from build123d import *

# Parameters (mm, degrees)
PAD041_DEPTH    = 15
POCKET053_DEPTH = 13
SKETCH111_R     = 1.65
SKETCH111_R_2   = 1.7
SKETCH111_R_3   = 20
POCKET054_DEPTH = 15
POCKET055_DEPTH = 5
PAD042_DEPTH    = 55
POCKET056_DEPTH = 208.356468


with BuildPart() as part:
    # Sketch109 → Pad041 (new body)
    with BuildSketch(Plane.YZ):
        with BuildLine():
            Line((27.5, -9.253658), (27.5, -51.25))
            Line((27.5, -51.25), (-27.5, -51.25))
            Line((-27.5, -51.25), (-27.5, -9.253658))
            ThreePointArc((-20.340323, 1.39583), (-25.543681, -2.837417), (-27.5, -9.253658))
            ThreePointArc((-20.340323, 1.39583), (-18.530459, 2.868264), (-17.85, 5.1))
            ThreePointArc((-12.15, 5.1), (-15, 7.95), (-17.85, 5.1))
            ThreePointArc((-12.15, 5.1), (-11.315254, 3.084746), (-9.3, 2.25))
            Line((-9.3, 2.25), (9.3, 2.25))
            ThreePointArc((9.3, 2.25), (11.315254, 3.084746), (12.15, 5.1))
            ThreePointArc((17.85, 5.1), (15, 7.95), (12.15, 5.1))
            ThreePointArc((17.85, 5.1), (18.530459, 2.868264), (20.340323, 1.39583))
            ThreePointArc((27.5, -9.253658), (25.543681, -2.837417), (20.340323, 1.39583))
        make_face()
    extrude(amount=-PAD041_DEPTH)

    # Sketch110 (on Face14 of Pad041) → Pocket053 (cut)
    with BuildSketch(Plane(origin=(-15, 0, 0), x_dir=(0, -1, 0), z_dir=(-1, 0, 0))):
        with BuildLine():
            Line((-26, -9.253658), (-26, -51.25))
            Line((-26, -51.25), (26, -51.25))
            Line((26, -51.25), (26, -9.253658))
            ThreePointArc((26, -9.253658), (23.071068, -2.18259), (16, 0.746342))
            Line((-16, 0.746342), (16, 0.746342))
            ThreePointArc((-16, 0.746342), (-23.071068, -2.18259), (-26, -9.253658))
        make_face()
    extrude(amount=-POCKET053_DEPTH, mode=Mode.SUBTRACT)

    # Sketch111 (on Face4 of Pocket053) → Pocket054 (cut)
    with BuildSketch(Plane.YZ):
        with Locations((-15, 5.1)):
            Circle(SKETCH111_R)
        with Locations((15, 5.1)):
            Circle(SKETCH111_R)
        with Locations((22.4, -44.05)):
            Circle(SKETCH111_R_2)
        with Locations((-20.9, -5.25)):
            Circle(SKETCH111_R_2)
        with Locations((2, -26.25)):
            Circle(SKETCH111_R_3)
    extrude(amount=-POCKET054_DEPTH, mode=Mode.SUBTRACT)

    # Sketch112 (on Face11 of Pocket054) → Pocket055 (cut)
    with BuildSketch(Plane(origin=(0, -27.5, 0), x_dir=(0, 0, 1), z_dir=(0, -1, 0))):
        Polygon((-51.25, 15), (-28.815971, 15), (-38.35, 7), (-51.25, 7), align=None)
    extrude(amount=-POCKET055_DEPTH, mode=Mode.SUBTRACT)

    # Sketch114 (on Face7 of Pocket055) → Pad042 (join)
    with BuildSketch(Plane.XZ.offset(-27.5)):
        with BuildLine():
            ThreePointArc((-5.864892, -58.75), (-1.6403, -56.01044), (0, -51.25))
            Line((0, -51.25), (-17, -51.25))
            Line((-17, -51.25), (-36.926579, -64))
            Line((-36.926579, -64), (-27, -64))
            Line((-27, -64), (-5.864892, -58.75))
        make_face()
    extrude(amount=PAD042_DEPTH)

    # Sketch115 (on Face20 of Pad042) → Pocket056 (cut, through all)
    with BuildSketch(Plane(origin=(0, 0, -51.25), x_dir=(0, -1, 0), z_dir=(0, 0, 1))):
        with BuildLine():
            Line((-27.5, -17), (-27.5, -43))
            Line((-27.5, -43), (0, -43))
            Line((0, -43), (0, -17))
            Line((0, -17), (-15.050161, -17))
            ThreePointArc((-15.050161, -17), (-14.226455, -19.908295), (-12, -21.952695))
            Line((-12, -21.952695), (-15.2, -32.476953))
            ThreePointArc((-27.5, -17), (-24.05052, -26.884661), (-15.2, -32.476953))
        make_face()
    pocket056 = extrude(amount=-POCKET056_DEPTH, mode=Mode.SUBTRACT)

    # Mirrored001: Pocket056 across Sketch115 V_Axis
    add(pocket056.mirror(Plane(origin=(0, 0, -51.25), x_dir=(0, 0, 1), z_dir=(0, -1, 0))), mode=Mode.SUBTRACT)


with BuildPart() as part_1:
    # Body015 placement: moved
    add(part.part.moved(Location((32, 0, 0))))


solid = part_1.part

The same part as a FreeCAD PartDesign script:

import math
import FreeCAD as App
import Part
import Sketcher

V = App.Vector
Q = App.Units.Quantity


def add_polygon(sketch, points):
    """Adds a closed chain of lines whose ends are joined by coincident constraints."""
    first, n = sketch.GeometryCount, len(points)
    for a, b in zip(points, points[1:] + points[:1]):
        sketch.addGeometry(Part.LineSegment(App.Vector(*a, 0), App.Vector(*b, 0)), False)
    for i in range(n):
        sketch.addConstraint(Sketcher.Constraint("Coincident", first + i, 2, first + (i + 1) % n, 1))

doc = App.newDocument("Part")
params = doc.addObject("Spreadsheet::Sheet", "Params")
for row, (alias, value) in enumerate([
    ("sketch1_radius", "4.000001 mm"),
    ("sketch1_radius2", "11.500001 mm"),
    ("sketch1_width", "55 mm"),
    ("sketch1_radius3", "2.85 mm"),
    ("sketch1_width2", "18.6 mm"),
    ("pad1_length", "15 mm"),
    ("sketch2_radius", "9.999999 mm"),
    ("sketch2_width", "52 mm"),
    ("pocket1_length", "13 mm"),
    ("sketch3_diameter", "40 mm"),
    ("sketch3_diameter2", "3.3 mm"),
    ("sketch3_diameter3", "3.4 mm"),
    ("pocket2_length", "15 mm"),
    ("sketch4_width", "8 mm"),
    ("sketch4_height", "12.9 mm"),
    ("pocket3_length", "5 mm"),
    ("sketch5_width", "17 mm"),
    ("pad2_length", "55 mm"),
    ("sketch6_width", "26 mm"),
    ("sketch6_length", "11 mm"),
    ("sketch6_height", "27.5 mm"),
], start=1):
    params.set(f"A{row}", alias)
    params.set(f"B{row}", "=" + value)
    params.setAlias(f"B{row}", alias)

body = doc.addObject("PartDesign::Body", "Body")

sketch1 = doc.addObject("Sketcher::SketchObject", "Sketch")
body.addObject(sketch1)
sketch1.AttachmentSupport = (doc.YZ_Plane, [""])
sketch1.MapMode = "FlatFace"
sketch1.addGeometry(Part.LineSegment(V(27.5, -51.2, 0), V(27.5, -9.3, 0)), False)
sketch1.addGeometry(Part.ArcOfCircle(Part.Circle(V(16, -9.3, 0), V(0, 0, 1), 11.5), math.radians(0), math.radians(68)), False)
sketch1.addGeometry(Part.ArcOfCircle(Part.Circle(V(21.9, 5.1, 0), V(0, 0, 1), 4), math.radians(-180), math.radians(-112)), False)
sketch1.addGeometry(Part.ArcOfCircle(Part.Circle(V(15, 5.1, 0), V(0, 0, 1), 2.9), math.radians(0), math.radians(180)), False)
sketch1.addGeometry(Part.ArcOfCircle(Part.Circle(V(9.3, 5.1, 0), V(0, 0, 1), 2.9), math.radians(-90), math.radians(0)), False)
sketch1.addGeometry(Part.LineSegment(V(9.3, 2.2, 0), V(-9.3, 2.2, 0)), False)
sketch1.addGeometry(Part.ArcOfCircle(Part.Circle(V(-9.3, 5.1, 0), V(0, 0, 1), 2.9), math.radians(-180), math.radians(-90)), False)
sketch1.addGeometry(Part.ArcOfCircle(Part.Circle(V(-15, 5.1, 0), V(0, 0, 1), 2.9), math.radians(0), math.radians(180)), False)
sketch1.addGeometry(Part.ArcOfCircle(Part.Circle(V(-21.9, 5.1, 0), V(0, 0, 1), 4), math.radians(-68), math.radians(0)), False)
sketch1.addGeometry(Part.ArcOfCircle(Part.Circle(V(-16, -9.3, 0), V(0, 0, 1), 11.5), math.radians(112), math.radians(180)), False)
sketch1.addGeometry(Part.LineSegment(V(-27.5, -9.3, 0), V(-27.5, -51.2, 0)), False)
sketch1.addGeometry(Part.LineSegment(V(-27.5, -51.2, 0), V(27.5, -51.2, 0)), False)
sketch1.addConstraint(Sketcher.Constraint("Tangent", 0, 2, 1, 1))
sketch1.addConstraint(Sketcher.Constraint("Tangent", 1, 2, 2, 2))
sketch1.addConstraint(Sketcher.Constraint("Tangent", 2, 1, 3, 1))
sketch1.addConstraint(Sketcher.Constraint("Tangent", 3, 2, 4, 2))
sketch1.addConstraint(Sketcher.Constraint("Tangent", 4, 1, 5, 1))
sketch1.addConstraint(Sketcher.Constraint("Tangent", 5, 2, 6, 2))
sketch1.addConstraint(Sketcher.Constraint("Tangent", 6, 1, 7, 1))
sketch1.addConstraint(Sketcher.Constraint("Tangent", 7, 2, 8, 2))
sketch1.addConstraint(Sketcher.Constraint("Tangent", 8, 1, 9, 1))
sketch1.addConstraint(Sketcher.Constraint("Tangent", 9, 2, 10, 1))
sketch1.addConstraint(Sketcher.Constraint("Coincident", 10, 2, 11, 1))
sketch1.addConstraint(Sketcher.Constraint("Coincident", 11, 2, 0, 1))
sketch1.addConstraint(Sketcher.Constraint("Vertical", 0))
sketch1.addConstraint(Sketcher.Constraint("Horizontal", 5))
sketch1.addConstraint(Sketcher.Constraint("Vertical", 10))
sketch1.addConstraint(Sketcher.Constraint("Horizontal", 11))
sketch1.addConstraint(Sketcher.Constraint("Equal", 3, 4))
sketch1.addConstraint(Sketcher.Constraint("Equal", 4, 6))
sketch1.addConstraint(Sketcher.Constraint("Equal", 6, 7))
sketch1.addConstraint(Sketcher.Constraint("Equal", 2, 8))
sketch1.addConstraint(Sketcher.Constraint("Equal", 1, 9))
sketch1.addConstraint(Sketcher.Constraint("Symmetric", 3, 3, 7, 3, -2))
sketch1.addConstraint(Sketcher.Constraint("Symmetric", 1, 3, 9, 3, -2))
sketch1.addConstraint(Sketcher.Constraint("Horizontal", 2, 3, 3, 3))
sketch1.addConstraint(Sketcher.Constraint("Horizontal", 3, 3, 4, 3))
sketch1.addConstraint(Sketcher.Constraint("Radius", 2, Q("4.000001 mm")))
sketch1.addConstraint(Sketcher.Constraint("Radius", 1, Q("11.500001 mm")))
sketch1.addConstraint(Sketcher.Constraint("DistanceX", 11, 1, 11, 2, Q("55 mm")))
sketch1.addConstraint(Sketcher.Constraint("Radius", 3, Q("2.85 mm")))
sketch1.addConstraint(Sketcher.Constraint("DistanceX", 5, 2, 5, 1, Q("18.6 mm")))
sketch1.addConstraint(Sketcher.Constraint("DistanceY", -1, 1, 2, 3, Q("5.100001 mm")))
sketch1.addConstraint(Sketcher.Constraint("DistanceY", 10, 2, 5, 2, Q("53.5 mm")))
sketch1.setExpression("Constraints[25]", "Params.sketch1_radius")
sketch1.setExpression("Constraints[26]", "Params.sketch1_radius2")
sketch1.setExpression("Constraints[27]", "Params.sketch1_width")
sketch1.setExpression("Constraints[28]", "Params.sketch1_radius3")
sketch1.setExpression("Constraints[29]", "Params.sketch1_width2")
pad1 = doc.addObject("PartDesign::Pad", "Pad")
body.addObject(pad1)
pad1.Profile = sketch1
pad1.setExpression("Length", "Params.pad1_length")
pad1.Reversed = True

sketch2 = doc.addObject("Sketcher::SketchObject", "Sketch001")
body.addObject(sketch2)
sketch2.AttachmentSupport = (doc.YZ_Plane, [""])
sketch2.MapMode = "FlatFace"
sketch2.AttachmentOffset = App.Placement(V(0, 0, -15), App.Rotation())
sketch2.addGeometry(Part.LineSegment(V(26, -9, 0), V(26, -51, 0)), False)
sketch2.addGeometry(Part.LineSegment(V(26, -51, 0), V(-26, -51, 0)), False)
sketch2.addGeometry(Part.LineSegment(V(-26, -51, 0), V(-26, -9, 0)), False)
sketch2.addGeometry(Part.ArcOfCircle(Part.Circle(V(-16, -9, 0), V(0, 0, 1), 10), math.radians(90), math.radians(180)), False)
sketch2.addGeometry(Part.LineSegment(V(-16, 1, 0), V(16, 1, 0)), False)
sketch2.addGeometry(Part.ArcOfCircle(Part.Circle(V(16, -9, 0), V(0, 0, 1), 10), math.radians(0), math.radians(90)), False)
sketch2.addConstraint(Sketcher.Constraint("Coincident", 0, 2, 1, 1))
sketch2.addConstraint(Sketcher.Constraint("Coincident", 1, 2, 2, 1))
sketch2.addConstraint(Sketcher.Constraint("Tangent", 2, 2, 3, 2))
sketch2.addConstraint(Sketcher.Constraint("Tangent", 3, 1, 4, 1))
sketch2.addConstraint(Sketcher.Constraint("Tangent", 4, 2, 5, 2))
sketch2.addConstraint(Sketcher.Constraint("Tangent", 5, 1, 0, 1))
sketch2.addConstraint(Sketcher.Constraint("Vertical", 0))
sketch2.addConstraint(Sketcher.Constraint("Horizontal", 1))
sketch2.addConstraint(Sketcher.Constraint("Vertical", 2))
sketch2.addConstraint(Sketcher.Constraint("Horizontal", 4))
sketch2.addConstraint(Sketcher.Constraint("Equal", 3, 5))
sketch2.addConstraint(Sketcher.Constraint("Radius", 3, Q("9.999999 mm")))
sketch2.addConstraint(Sketcher.Constraint("DistanceX", 1, 2, 1, 1, Q("52 mm")))
sketch2.addConstraint(Sketcher.Constraint("DistanceX", 3, 3, -1, 1, Q("16.000001 mm")))
sketch2.addConstraint(Sketcher.Constraint("DistanceY", 0, 2, -1, 1, Q("51.25 mm")))
sketch2.addConstraint(Sketcher.Constraint("DistanceY", 0, 2, 0, 1, Q("41.996342 mm")))
sketch2.setExpression("Constraints[11]", "Params.sketch2_radius")
sketch2.setExpression("Constraints[12]", "Params.sketch2_width")
pocket1 = doc.addObject("PartDesign::Pocket", "Pocket")
body.addObject(pocket1)
pocket1.Profile = sketch2
pocket1.setExpression("Length", "Params.pocket1_length")
pocket1.Reversed = True

sketch3 = doc.addObject("Sketcher::SketchObject", "Sketch002")
body.addObject(sketch3)
sketch3.AttachmentSupport = (doc.YZ_Plane, [""])
sketch3.MapMode = "FlatFace"
sketch3.addGeometry(Part.Circle(V(-15, 5.1, 0), V(0, 0, 1), 1.6), False)
sketch3.addGeometry(Part.Circle(V(15, 5.1, 0), V(0, 0, 1), 1.6), False)
sketch3.addGeometry(Part.Circle(V(22.4, -44, 0), V(0, 0, 1), 1.7), False)
sketch3.addGeometry(Part.Circle(V(-20.9, -5.2, 0), V(0, 0, 1), 1.7), False)
sketch3.addGeometry(Part.Circle(V(2, -26.2, 0), V(0, 0, 1), 20), False)
sketch3.addConstraint(Sketcher.Constraint("Equal", 0, 1))
sketch3.addConstraint(Sketcher.Constraint("Equal", 2, 3))
sketch3.addConstraint(Sketcher.Constraint("Symmetric", 0, 3, 1, 3, -2))
sketch3.addConstraint(Sketcher.Constraint("Diameter", 4, Q("40 mm")))
sketch3.addConstraint(Sketcher.Constraint("Diameter", 0, Q("3.3 mm")))
sketch3.addConstraint(Sketcher.Constraint("Diameter", 2, Q("3.4 mm")))
sketch3.addConstraint(Sketcher.Constraint("DistanceX", 0, 3, -1, 1, Q("15 mm")))
sketch3.addConstraint(Sketcher.Constraint("DistanceX", -1, 1, 4, 3, Q("2 mm")))
sketch3.addConstraint(Sketcher.Constraint("DistanceY", 4, 3, 3, 3, Q("21 mm")))
sketch3.addConstraint(Sketcher.Constraint("DistanceY", -1, 1, 0, 3, Q("5.1 mm")))
sketch3.addConstraint(Sketcher.Constraint("DistanceX", -1, 1, 2, 3, Q("22.4 mm")))
sketch3.addConstraint(Sketcher.Constraint("DistanceX", 3, 3, -1, 1, Q("20.9 mm")))
sketch3.addConstraint(Sketcher.Constraint("DistanceY", 2, 3, 3, 3, Q("38.8 mm")))
sketch3.addConstraint(Sketcher.Constraint("DistanceY", 2, 3, -1, 1, Q("44.05 mm")))
sketch3.setExpression("Constraints[3]", "Params.sketch3_diameter")
sketch3.setExpression("Constraints[4]", "Params.sketch3_diameter2")
sketch3.setExpression("Constraints[5]", "Params.sketch3_diameter3")
pocket2 = doc.addObject("PartDesign::Pocket", "Pocket001")
body.addObject(pocket2)
pocket2.Profile = sketch3
pocket2.setExpression("Length", "Params.pocket2_length")

sketch4 = doc.addObject("Sketcher::SketchObject", "Sketch003")
body.addObject(sketch4)
sketch4.AttachmentSupport = (doc.XZ_Plane, [""])
sketch4.MapMode = "FlatFace"
sketch4.AttachmentOffset = App.Placement(V(0, 0, 27.5), App.Rotation())
add_polygon(sketch4, [(-15, -29), (-15, -51), (-7, -51), (-7, -38)])
sketch4.addConstraint(Sketcher.Constraint("Vertical", 0))
sketch4.addConstraint(Sketcher.Constraint("Horizontal", 1))
sketch4.addConstraint(Sketcher.Constraint("Vertical", 2))
sketch4.addConstraint(Sketcher.Constraint("DistanceX", 1, 1, 1, 2, Q("8 mm")))
sketch4.addConstraint(Sketcher.Constraint("Angle", 3, Q("129.999999 deg")))
sketch4.addConstraint(Sketcher.Constraint("DistanceY", 2, 1, 2, 2, Q("12.9 mm")))
sketch4.addConstraint(Sketcher.Constraint("DistanceX", 0, 2, -1, 1, Q("15 mm")))
sketch4.addConstraint(Sketcher.Constraint("DistanceY", 0, 2, -1, 1, Q("51.25 mm")))
sketch4.setExpression("Constraints[7]", "Params.sketch4_width")
sketch4.setExpression("Constraints[9]", "Params.sketch4_height")
pocket3 = doc.addObject("PartDesign::Pocket", "Pocket002")
body.addObject(pocket3)
pocket3.Profile = sketch4
pocket3.setExpression("Length", "Params.pocket3_length")

sketch5 = doc.addObject("Sketcher::SketchObject", "Sketch004")
body.addObject(sketch5)
sketch5.AttachmentSupport = (doc.XZ_Plane, [""])
sketch5.MapMode = "FlatFace"
sketch5.AttachmentOffset = App.Placement(V(0, 0, -27.5), App.Rotation())
sketch5.addGeometry(Part.ArcOfCircle(Part.Circle(V(-8, -51, 0), V(0, 0, 1), 8), math.radians(-76), math.radians(0)), False)
sketch5.addGeometry(Part.LineSegment(V(0, -51, 0), V(-17, -51, 0)), False)
sketch5.addGeometry(Part.LineSegment(V(-17, -51, 0), V(-37, -64, 0)), False)
sketch5.addGeometry(Part.LineSegment(V(-37, -64, 0), V(-27, -64, 0)), False)
sketch5.addGeometry(Part.LineSegment(V(-27, -64, 0), V(-6, -59, 0)), False)
sketch5.addConstraint(Sketcher.Constraint("Coincident", 0, 2, 1, 1))
sketch5.addConstraint(Sketcher.Constraint("Coincident", 1, 2, 2, 1))
sketch5.addConstraint(Sketcher.Constraint("Coincident", 2, 2, 3, 1))
sketch5.addConstraint(Sketcher.Constraint("Coincident", 3, 2, 4, 1))
sketch5.addConstraint(Sketcher.Constraint("Tangent", 4, 2, 0, 1))
sketch5.addConstraint(Sketcher.Constraint("Horizontal", 1))
sketch5.addConstraint(Sketcher.Constraint("Horizontal", 3))
sketch5.addConstraint(Sketcher.Constraint("PointOnObject", 0, 2, -2))
sketch5.addConstraint(Sketcher.Constraint("DistanceX", 1, 2, 1, 1, Q("17 mm")))
sketch5.addConstraint(Sketcher.Constraint("DistanceY", 2, 2, -1, 1, Q("64 mm")))
sketch5.addConstraint(Sketcher.Constraint("DistanceX", 3, 2, -1, 1, Q("27 mm")))
sketch5.addConstraint(Sketcher.Constraint("Radius", 0, Q("7.727901 mm")))
sketch5.addConstraint(Sketcher.Constraint("DistanceY", 4, 2, 0, 2, Q("7.5 mm")))
sketch5.addConstraint(Sketcher.Constraint("DistanceY", 0, 2, -1, 1, Q("51.25 mm")))
sketch5.addConstraint(Sketcher.Constraint("DistanceX", 3, 1, 3, 2, Q("9.926579 mm")))
sketch5.setExpression("Constraints[8]", "Params.sketch5_width")
pad2 = doc.addObject("PartDesign::Pad", "Pad001")
body.addObject(pad2)
pad2.Profile = sketch5
pad2.setExpression("Length", "Params.pad2_length")

sketch6 = doc.addObject("Sketcher::SketchObject", "Sketch005")
body.addObject(sketch6)
sketch6.AttachmentSupport = (doc.XY_Plane, [""])
sketch6.MapMode = "FlatFace"
sketch6.AttachmentOffset = App.Placement(V(0, 0, -51.25), App.Rotation())
sketch6.addGeometry(Part.LineSegment(V(-17, 28, 0), V(-43, 28, 0)), False)
sketch6.addGeometry(Part.LineSegment(V(-43, 28, 0), V(-43, 0, 0)), False)
sketch6.addGeometry(Part.LineSegment(V(-43, 0, 0), V(-17, 0, 0)), False)
sketch6.addGeometry(Part.LineSegment(V(-17, 0, 0), V(-17, 15, 0)), False)
sketch6.addGeometry(Part.ArcOfCircle(Part.Circle(V(-17, 10, 0), V(0, 0, 1), 6), math.radians(90), math.radians(153)), False)
sketch6.addGeometry(Part.LineSegment(V(-22, 12, 0), V(-32, 15, 0)), False)
sketch6.addGeometry(Part.ArcOfCircle(Part.Circle(V(-17, 12, 0), V(0, 0, 1), 16), math.radians(90), math.radians(167)), False)
sketch6.addConstraint(Sketcher.Constraint("Coincident", 0, 2, 1, 1))
sketch6.addConstraint(Sketcher.Constraint("Coincident", 1, 2, 2, 1))
sketch6.addConstraint(Sketcher.Constraint("Coincident", 2, 2, 3, 1))
sketch6.addConstraint(Sketcher.Constraint("Coincident", 3, 2, 4, 1))
sketch6.addConstraint(Sketcher.Constraint("Coincident", 4, 2, 5, 1))
sketch6.addConstraint(Sketcher.Constraint("Coincident", 5, 2, 6, 2))
sketch6.addConstraint(Sketcher.Constraint("Tangent", 6, 1, 0, 1))
sketch6.addConstraint(Sketcher.Constraint("Horizontal", 0))
sketch6.addConstraint(Sketcher.Constraint("Vertical", 1))
sketch6.addConstraint(Sketcher.Constraint("Horizontal", 2))
sketch6.addConstraint(Sketcher.Constraint("Vertical", 3))
sketch6.addConstraint(Sketcher.Constraint("PointOnObject", 1, 2, -1))
sketch6.addConstraint(Sketcher.Constraint("Vertical", 6, 3, 2, 2))
sketch6.addConstraint(Sketcher.Constraint("DistanceX", 0, 2, 0, 1, Q("26 mm")))
sketch6.addConstraint(Sketcher.Constraint("Distance", 5, Q("11 mm")))
sketch6.addConstraint(Sketcher.Constraint("DistanceY", 1, 2, 1, 1, Q("27.5 mm")))
sketch6.addConstraint(Sketcher.Constraint("DistanceX", 6, 3, -1, 1, Q("17.000001 mm")))
sketch6.addConstraint(Sketcher.Constraint("DistanceY", -1, 1, 4, 2, Q("12 mm")))
sketch6.addConstraint(Sketcher.Constraint("DistanceY", -1, 1, 5, 2, Q("15.2 mm")))
sketch6.addConstraint(Sketcher.Constraint("Radius", 4, Q("5.546022 mm")))
sketch6.addConstraint(Sketcher.Constraint("Radius", 6, Q("15.887238 mm")))
sketch6.addConstraint(Sketcher.Constraint("DistanceY", 3, 1, 3, 2, Q("15.050161 mm")))
sketch6.setExpression("Constraints[13]", "Params.sketch6_width")
sketch6.setExpression("Constraints[14]", "Params.sketch6_length")
sketch6.setExpression("Constraints[15]", "Params.sketch6_height")
pocket4 = doc.addObject("PartDesign::Pocket", "Pocket003")
body.addObject(pocket4)
pocket4.Profile = sketch6
pocket4.Type = "ThroughAll"
doc.recompute()

mirrored = doc.addObject("PartDesign::Mirrored", "Mirrored")
body.addObject(mirrored)
mirrored.Originals = [pocket4]
mirrored.MirrorPlane = (doc.XZ_Plane, [""])
body.Tip = mirrored
body2 = doc.addObject("PartDesign::Body", "Body001")
doc.recompute()

body.Placement = App.Placement(V(32, 0, 0), App.Rotation(V(0, 0, 1), 0))
boolean = doc.addObject("PartDesign::Boolean", "Boolean")
body2.addObject(boolean)
boolean.Type = "Fuse"
boolean.addObjects([body])

doc.recompute()
